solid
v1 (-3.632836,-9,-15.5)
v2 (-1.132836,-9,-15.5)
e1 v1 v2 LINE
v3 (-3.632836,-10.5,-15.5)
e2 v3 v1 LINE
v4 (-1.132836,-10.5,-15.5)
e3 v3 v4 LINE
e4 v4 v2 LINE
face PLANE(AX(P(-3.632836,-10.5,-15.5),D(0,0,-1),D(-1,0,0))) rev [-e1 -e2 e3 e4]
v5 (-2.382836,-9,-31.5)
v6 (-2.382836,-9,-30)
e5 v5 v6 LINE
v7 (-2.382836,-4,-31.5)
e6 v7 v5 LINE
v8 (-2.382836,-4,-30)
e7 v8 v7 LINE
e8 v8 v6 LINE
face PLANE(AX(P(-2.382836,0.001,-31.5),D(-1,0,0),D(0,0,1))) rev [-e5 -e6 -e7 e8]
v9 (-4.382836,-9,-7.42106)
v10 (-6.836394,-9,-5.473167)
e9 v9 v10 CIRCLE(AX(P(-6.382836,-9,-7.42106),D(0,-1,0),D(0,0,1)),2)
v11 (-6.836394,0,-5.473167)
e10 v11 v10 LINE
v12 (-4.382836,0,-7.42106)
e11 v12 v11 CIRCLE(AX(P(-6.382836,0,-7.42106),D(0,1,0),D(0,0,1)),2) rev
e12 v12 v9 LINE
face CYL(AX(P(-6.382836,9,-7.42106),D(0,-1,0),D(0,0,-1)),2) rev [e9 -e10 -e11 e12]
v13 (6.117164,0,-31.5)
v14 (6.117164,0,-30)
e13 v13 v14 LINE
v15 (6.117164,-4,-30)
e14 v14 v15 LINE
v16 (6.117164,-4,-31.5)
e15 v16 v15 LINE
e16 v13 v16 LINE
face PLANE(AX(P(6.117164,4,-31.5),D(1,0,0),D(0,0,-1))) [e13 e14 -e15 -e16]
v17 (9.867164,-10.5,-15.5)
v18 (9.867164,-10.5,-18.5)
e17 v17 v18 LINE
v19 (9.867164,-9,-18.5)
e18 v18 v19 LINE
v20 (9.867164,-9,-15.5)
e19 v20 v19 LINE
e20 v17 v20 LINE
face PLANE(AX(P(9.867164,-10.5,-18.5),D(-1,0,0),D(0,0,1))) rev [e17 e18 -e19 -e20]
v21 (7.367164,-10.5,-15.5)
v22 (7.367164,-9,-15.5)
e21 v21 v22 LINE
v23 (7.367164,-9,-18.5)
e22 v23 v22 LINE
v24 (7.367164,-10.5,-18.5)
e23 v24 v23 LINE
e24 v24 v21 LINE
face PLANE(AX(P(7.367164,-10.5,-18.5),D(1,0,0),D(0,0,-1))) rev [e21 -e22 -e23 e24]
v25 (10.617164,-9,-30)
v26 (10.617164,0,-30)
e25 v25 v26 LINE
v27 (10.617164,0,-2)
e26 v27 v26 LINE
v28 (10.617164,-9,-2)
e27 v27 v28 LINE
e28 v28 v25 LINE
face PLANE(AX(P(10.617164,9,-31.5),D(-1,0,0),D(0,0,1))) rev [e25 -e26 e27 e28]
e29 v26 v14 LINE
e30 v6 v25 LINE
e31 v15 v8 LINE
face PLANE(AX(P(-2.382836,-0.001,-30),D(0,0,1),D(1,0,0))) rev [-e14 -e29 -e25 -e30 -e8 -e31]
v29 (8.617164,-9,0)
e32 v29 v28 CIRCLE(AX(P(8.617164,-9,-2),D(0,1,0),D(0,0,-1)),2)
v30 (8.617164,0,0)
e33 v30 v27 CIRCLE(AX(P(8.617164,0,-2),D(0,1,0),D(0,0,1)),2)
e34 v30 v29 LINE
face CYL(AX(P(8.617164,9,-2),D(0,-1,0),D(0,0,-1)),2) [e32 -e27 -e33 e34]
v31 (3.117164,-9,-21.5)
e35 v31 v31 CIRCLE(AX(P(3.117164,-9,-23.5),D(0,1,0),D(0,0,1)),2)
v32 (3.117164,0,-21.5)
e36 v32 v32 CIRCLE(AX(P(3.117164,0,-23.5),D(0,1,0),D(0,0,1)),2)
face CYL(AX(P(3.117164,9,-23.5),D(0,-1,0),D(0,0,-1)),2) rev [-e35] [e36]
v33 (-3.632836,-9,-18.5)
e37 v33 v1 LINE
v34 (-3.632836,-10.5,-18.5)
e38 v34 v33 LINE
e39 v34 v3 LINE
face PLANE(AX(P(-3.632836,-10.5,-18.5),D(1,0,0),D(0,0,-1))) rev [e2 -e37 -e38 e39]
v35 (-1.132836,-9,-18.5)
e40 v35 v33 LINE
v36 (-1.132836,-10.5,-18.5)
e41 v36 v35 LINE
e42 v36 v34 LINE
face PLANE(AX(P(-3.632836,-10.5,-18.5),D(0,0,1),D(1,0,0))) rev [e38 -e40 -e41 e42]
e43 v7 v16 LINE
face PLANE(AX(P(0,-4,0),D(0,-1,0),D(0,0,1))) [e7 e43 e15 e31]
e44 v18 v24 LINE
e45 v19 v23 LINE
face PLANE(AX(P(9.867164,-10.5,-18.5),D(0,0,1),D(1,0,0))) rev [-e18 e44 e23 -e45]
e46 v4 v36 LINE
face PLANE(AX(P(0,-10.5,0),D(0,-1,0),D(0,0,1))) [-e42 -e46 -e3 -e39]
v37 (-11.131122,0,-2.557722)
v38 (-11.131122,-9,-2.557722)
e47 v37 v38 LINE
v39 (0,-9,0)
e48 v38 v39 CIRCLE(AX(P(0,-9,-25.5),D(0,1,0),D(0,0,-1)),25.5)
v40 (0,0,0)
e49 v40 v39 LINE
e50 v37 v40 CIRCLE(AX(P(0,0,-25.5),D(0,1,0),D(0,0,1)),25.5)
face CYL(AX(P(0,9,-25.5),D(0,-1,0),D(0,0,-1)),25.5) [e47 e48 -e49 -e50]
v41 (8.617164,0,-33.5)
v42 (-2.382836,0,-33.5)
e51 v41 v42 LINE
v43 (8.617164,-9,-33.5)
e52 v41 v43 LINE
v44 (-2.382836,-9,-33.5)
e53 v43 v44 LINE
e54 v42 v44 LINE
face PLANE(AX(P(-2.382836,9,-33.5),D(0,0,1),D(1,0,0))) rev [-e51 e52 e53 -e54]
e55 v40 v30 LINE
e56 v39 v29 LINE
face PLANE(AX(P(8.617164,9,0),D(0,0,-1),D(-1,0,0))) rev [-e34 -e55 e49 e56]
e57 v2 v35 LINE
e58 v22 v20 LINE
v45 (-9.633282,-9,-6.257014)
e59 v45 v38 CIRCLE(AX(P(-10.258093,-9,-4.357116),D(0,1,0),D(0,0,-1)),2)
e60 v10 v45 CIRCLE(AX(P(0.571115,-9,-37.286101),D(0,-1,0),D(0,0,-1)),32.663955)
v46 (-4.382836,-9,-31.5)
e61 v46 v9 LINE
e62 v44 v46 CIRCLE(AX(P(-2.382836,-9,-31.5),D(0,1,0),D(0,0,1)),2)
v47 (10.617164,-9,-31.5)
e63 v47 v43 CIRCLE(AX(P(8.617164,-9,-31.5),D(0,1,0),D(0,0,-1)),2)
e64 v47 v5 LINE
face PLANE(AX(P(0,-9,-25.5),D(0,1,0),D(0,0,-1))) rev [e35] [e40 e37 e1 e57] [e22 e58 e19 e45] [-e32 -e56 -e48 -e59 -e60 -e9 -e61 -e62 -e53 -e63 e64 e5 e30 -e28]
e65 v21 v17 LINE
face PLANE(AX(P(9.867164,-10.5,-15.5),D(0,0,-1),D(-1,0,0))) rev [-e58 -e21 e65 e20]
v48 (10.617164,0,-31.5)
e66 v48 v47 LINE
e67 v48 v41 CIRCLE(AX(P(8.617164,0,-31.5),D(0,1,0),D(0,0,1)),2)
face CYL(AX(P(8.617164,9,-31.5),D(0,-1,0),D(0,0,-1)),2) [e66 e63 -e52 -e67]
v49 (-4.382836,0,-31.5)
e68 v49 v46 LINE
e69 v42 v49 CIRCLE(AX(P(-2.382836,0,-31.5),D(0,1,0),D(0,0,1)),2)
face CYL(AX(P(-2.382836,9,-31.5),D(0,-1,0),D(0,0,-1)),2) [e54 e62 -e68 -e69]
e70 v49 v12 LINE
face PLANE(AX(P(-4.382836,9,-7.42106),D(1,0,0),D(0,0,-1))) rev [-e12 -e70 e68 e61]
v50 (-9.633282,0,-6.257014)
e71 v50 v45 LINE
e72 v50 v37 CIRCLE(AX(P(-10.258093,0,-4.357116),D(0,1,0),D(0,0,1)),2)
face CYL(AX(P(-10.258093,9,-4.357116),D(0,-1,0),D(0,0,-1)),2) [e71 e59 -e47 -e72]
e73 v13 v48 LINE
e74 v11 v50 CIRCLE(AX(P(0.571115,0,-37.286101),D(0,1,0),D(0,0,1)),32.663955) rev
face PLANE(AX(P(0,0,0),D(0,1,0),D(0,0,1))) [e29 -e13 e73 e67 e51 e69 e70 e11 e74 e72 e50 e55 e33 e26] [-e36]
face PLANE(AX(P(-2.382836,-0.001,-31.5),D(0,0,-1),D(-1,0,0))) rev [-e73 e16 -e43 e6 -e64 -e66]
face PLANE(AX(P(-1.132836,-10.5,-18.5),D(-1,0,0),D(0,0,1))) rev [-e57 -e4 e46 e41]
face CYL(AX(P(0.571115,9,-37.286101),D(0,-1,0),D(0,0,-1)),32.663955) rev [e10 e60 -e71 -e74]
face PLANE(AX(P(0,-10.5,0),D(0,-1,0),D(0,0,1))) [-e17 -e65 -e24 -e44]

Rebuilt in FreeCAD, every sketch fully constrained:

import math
import FreeCAD as App
import Part
import Sketcher
from FreeCAD import Vector


def add_polygon(sketch, points):
    """Adds a closed chain of lines whose ends are joined by coincident constraints."""
    first, n = sketch.GeometryCount, len(points)
    for a, b in zip(points, points[1:] + points[:1]):
        sketch.addGeometry(Part.LineSegment(App.Vector(*a, 0), App.Vector(*b, 0)), False)
    for i in range(n):
        sketch.addConstraint(Sketcher.Constraint("Coincident", first + i, 2, first + (i + 1) % n, 1))

doc = App.newDocument("Part")
body = doc.addObject("PartDesign::Body", "Body")

# Sketch on XZ plane
sketch1 = body.newObject("Sketcher::SketchObject", "Sketch")
sketch1.AttachmentSupport = (doc.getObject("XZ_Plane"), [""])
sketch1.MapMode = "FlatFace"
sketch1.addGeometry(Part.LineSegment(Vector(8.6, -33.5, 0), Vector(-2.4, -33.5, 0)), False)
sketch1.addGeometry(Part.ArcOfCircle(Part.Circle(Vector(-2.4, -31.5, 0), Vector(0, 0, 1), 2), math.radians(-180), math.radians(-90)), False)
sketch1.addGeometry(Part.LineSegment(Vector(-4.4, -31.5, 0), Vector(-4.4, -7.4, 0)), False)
sketch1.addGeometry(Part.ArcOfCircle(Part.Circle(Vector(-6.4, -7.4, 0), Vector(0, 0, 1), 2), math.radians(0), math.radians(103)), False)
sketch1.addGeometry(Part.ArcOfCircle(Part.Circle(Vector(0.6, -37.3, 0), Vector(0, 0, 1), 32.7), math.radians(103.11), math.radians(108.2)), False)
sketch1.addGeometry(Part.ArcOfCircle(Part.Circle(Vector(-10.3, -4.4, 0), Vector(0, 0, 1), 2), math.radians(116), math.radians(288)), False)
sketch1.addGeometry(Part.ArcOfCircle(Part.Circle(Vector(0, -25.5, 0), Vector(0, 0, 1), 25.5), math.radians(90), math.radians(116)), False)
sketch1.addGeometry(Part.LineSegment(Vector(0, 0, 0), Vector(8.6, 0, 0)), False)
sketch1.addGeometry(Part.ArcOfCircle(Part.Circle(Vector(8.6, -2, 0), Vector(0, 0, 1), 2), math.radians(0), math.radians(90)), False)
sketch1.addGeometry(Part.LineSegment(Vector(10.6, -2, 0), Vector(10.6, -31.5, 0)), False)
sketch1.addGeometry(Part.ArcOfCircle(Part.Circle(Vector(8.6, -31.5, 0), Vector(0, 0, 1), 2), math.radians(-90), math.radians(0)), False)
sketch1.addGeometry(Part.Circle(Vector(3.1, -23.5, 0), Vector(0, 0, 1), 2), False)
sketch1.addConstraint(Sketcher.Constraint("Tangent", 0, 2, 1, 2))
sketch1.addConstraint(Sketcher.Constraint("Tangent", 1, 1, 2, 1))
sketch1.addConstraint(Sketcher.Constraint("Tangent", 2, 2, 3, 1))
sketch1.addConstraint(Sketcher.Constraint("Tangent", 3, 2, 4, 1))
sketch1.addConstraint(Sketcher.Constraint("Tangent", 4, 2, 5, 2))
sketch1.addConstraint(Sketcher.Constraint("Tangent", 5, 1, 6, 2))
sketch1.addConstraint(Sketcher.Constraint("Tangent", 6, 1, 7, 1))
sketch1.addConstraint(Sketcher.Constraint("Tangent", 7, 2, 8, 2))
sketch1.addConstraint(Sketcher.Constraint("Tangent", 8, 1, 9, 1))
sketch1.addConstraint(Sketcher.Constraint("Tangent", 9, 2, 10, 2))
sketch1.addConstraint(Sketcher.Constraint("Tangent", 10, 1, 0, 1))
sketch1.addConstraint(Sketcher.Constraint("Horizontal", 0))
sketch1.addConstraint(Sketcher.Constraint("Vertical", 2))
sketch1.addConstraint(Sketcher.Constraint("Horizontal", 7))
sketch1.addConstraint(Sketcher.Constraint("Vertical", 9))
sketch1.addConstraint(Sketcher.Constraint("Coincident", 6, 1, -1, 1))
sketch1.addConstraint(Sketcher.Constraint("Equal", 1, 3))
sketch1.addConstraint(Sketcher.Constraint("Equal", 3, 5))
sketch1.addConstraint(Sketcher.Constraint("Equal", 5, 8))
sketch1.addConstraint(Sketcher.Constraint("Equal", 8, 10))
sketch1.addConstraint(Sketcher.Constraint("Equal", 10, 11))
sketch1.addConstraint(Sketcher.Constraint("Diameter", 11, 4.0))
sketch1.addConstraint(Sketcher.Constraint("Radius", 6, 25.5))
sketch1.addConstraint(Sketcher.Constraint("DistanceX", 0, 2, 0, 1, 11.0))
sketch1.addConstraint(Sketcher.Constraint("DistanceY", 9, 2, 9, 1, 29.5))
sketch1.addConstraint(Sketcher.Constraint("DistanceY", 6, 3, 11, 3, 2.0))
sketch1.addConstraint(Sketcher.Constraint("DistanceX", 1, 3, 11, 3, 5.5))
sketch1.addConstraint(Sketcher.Constraint("Radius", 4, 32.663955))
sketch1.addConstraint(Sketcher.Constraint("DistanceY", 2, 1, 2, 2, 24.07894))
sketch1.addConstraint(Sketcher.Constraint("DistanceY", 4, 3, -1, 1, 37.286101))
sketch1.addConstraint(Sketcher.Constraint("DistanceX", 5, 3, 3, 2, 3.421699))
pad1 = body.newObject("PartDesign::Pad", "Pad")
pad1.Profile = sketch1
pad1.Length = 9
pad1.Reversed = True

# Sketch on XZ plane
sketch2 = body.newObject("Sketcher::SketchObject", "Sketch001")
sketch2.AttachmentSupport = (doc.getObject("XZ_Plane"), [""])
sketch2.MapMode = "FlatFace"
sketch2.AttachmentOffset = App.Placement(Vector(0, 0, -9), App.Rotation())
add_polygon(sketch2, [(-3.6, -18.5), (-3.6, -15.5), (-1.1, -15.5), (-1.1, -18.5)])  # lines 0-3
add_polygon(sketch2, [(7.4, -18.5), (7.4, -15.5), (9.9, -15.5), (9.9, -18.5)])  # lines 4-7
sketch2.addConstraint(Sketcher.Constraint("Vertical", 0))
sketch2.addConstraint(Sketcher.Constraint("Horizontal", 1))
sketch2.addConstraint(Sketcher.Constraint("Vertical", 2))
sketch2.addConstraint(Sketcher.Constraint("Horizontal", 3))
sketch2.addConstraint(Sketcher.Constraint("Vertical", 4))
sketch2.addConstraint(Sketcher.Constraint("Horizontal", 5))
sketch2.addConstraint(Sketcher.Constraint("Vertical", 6))
sketch2.addConstraint(Sketcher.Constraint("Horizontal", 7))
sketch2.addConstraint(Sketcher.Constraint("Horizontal", 1, 2, 4, 2))
sketch2.addConstraint(Sketcher.Constraint("Horizontal", 3, 2, 6, 2))
sketch2.addConstraint(Sketcher.Constraint("Equal", 3, 5))
sketch2.addConstraint(Sketcher.Constraint("DistanceY", 0, 1, 0, 2, 3.0))
sketch2.addConstraint(Sketcher.Constraint("DistanceX", 1, 1, 1, 2, 2.5))
sketch2.addConstraint(Sketcher.Constraint("DistanceX", 0, 2, 4, 2, 11.0))
sketch2.addConstraint(Sketcher.Constraint("DistanceY", 0, 2, -1, 1, 15.5))
sketch2.addConstraint(Sketcher.Constraint("DistanceX", 0, 2, -1, 1, 3.632836))
pad2 = body.newObject("PartDesign::Pad", "Pad001")
pad2.Profile = sketch2
pad2.Length = 1.5
pad2.Reversed = True

# Sketch on XZ plane
sketch3 = body.newObject("Sketcher::SketchObject", "Sketch002")
sketch3.AttachmentSupport = (doc.getObject("XZ_Plane"), [""])
sketch3.MapMode = "FlatFace"
sketch3.AttachmentOffset = App.Placement(Vector(0, 0, -9), App.Rotation())
add_polygon(sketch3, [(-2.4, -31.5), (-2.4, -30), (10.6, -30), (10.6, -31.5)])  # lines 0-3
sketch3.addConstraint(Sketcher.Constraint("Vertical", 0))
sketch3.addConstraint(Sketcher.Constraint("Horizontal", 1))
sketch3.addConstraint(Sketcher.Constraint("Vertical", 2))
sketch3.addConstraint(Sketcher.Constraint("Horizontal", 3))
sketch3.addConstraint(Sketcher.Constraint("DistanceX", 1, 1, 1, 2, 13.0))
sketch3.addConstraint(Sketcher.Constraint("DistanceY", 0, 1, 0, 2, 1.5))
sketch3.addConstraint(Sketcher.Constraint("DistanceY", 0, 2, -1, 1, 30.0))
sketch3.addConstraint(Sketcher.Constraint("DistanceX", 0, 2, -1, 1, 2.382836))
pocket1 = body.newObject("PartDesign::Pocket", "Pocket")
pocket1.Profile = sketch3
pocket1.Type = "UpToFirst"
pocket1.Reversed = True

# Sketch on XZ plane
sketch4 = body.newObject("Sketcher::SketchObject", "Sketch003")
sketch4.AttachmentSupport = (doc.getObject("XZ_Plane"), [""])
sketch4.MapMode = "FlatFace"
add_polygon(sketch4, [(-2.4, -30), (-2.4, -31.5), (6.1, -31.5), (6.1, -30)])  # lines 0-3
sketch4.addConstraint(Sketcher.Constraint("Vertical", 0))
sketch4.addConstraint(Sketcher.Constraint("Horizontal", 1))
sketch4.addConstraint(Sketcher.Constraint("Vertical", 2))
sketch4.addConstraint(Sketcher.Constraint("Horizontal", 3))
sketch4.addConstraint(Sketcher.Constraint("DistanceX", 1, 1, 1, 2, 8.5))
sketch4.addConstraint(Sketcher.Constraint("DistanceY", 0, 2, 0, 1, 1.5))
sketch4.addConstraint(Sketcher.Constraint("DistanceY", 2, 2, -1, 1, 30.0))
sketch4.addConstraint(Sketcher.Constraint("DistanceX", 0, 2, -1, 1, 2.382836))
pad3 = body.newObject("PartDesign::Pad", "Pad002")
pad3.Profile = sketch4
pad3.Length = 4
pad3.Reversed = True
body2 = doc.addObject("PartDesign::Body", "Body001")
doc.recompute()

body2.BaseFeature = body
doc.recompute()

mirroring = doc.addObject("Part::Mirroring", "Mirroring")
mirroring.Source = body
mirroring.Base = Vector(0, 0, -25.5)
mirroring.Normal = Vector(0, -1, 0)
body3 = doc.addObject("PartDesign::Body", "Body002")
body3.BaseFeature = mirroring
boolean = body2.newObject("PartDesign::Boolean", "Boolean")
boolean.Type = "Fuse"
boolean.addObjects([body3])
doc.recompute()

# Sketch on XZ plane
sketch5 = body2.newObject("Sketcher::SketchObject", "Sketch004")
sketch5.AttachmentSupport = (doc.getObject("XZ_Plane001"), [""])
sketch5.MapMode = "FlatFace"
add_polygon(sketch5, [(-25, -37), (-25, 5), (25, 5), (25, -37)])  # lines 0-3
sketch5.addConstraint(Sketcher.Constraint("Vertical", 0))
sketch5.addConstraint(Sketcher.Constraint("Horizontal", 1))
sketch5.addConstraint(Sketcher.Constraint("Vertical", 2))
sketch5.addConstraint(Sketcher.Constraint("Horizontal", 3))
sketch5.addConstraint(Sketcher.Constraint("DistanceX", 1, 1, 1, 2, 49.545976))
sketch5.addConstraint(Sketcher.Constraint("DistanceY", 0, 1, 0, 2, 42.208236))
sketch5.addConstraint(Sketcher.Constraint("DistanceX", 0, 2, -1, 1, 24.55448))
sketch5.addConstraint(Sketcher.Constraint("DistanceY", -1, 1, 0, 2, 5.198283))
pocket2 = body2.newObject("PartDesign::Pocket", "Pocket001")
pocket2.Profile = sketch5
pocket2.Type = "ThroughAll"
mirroring.Visibility = False

doc.recompute()
